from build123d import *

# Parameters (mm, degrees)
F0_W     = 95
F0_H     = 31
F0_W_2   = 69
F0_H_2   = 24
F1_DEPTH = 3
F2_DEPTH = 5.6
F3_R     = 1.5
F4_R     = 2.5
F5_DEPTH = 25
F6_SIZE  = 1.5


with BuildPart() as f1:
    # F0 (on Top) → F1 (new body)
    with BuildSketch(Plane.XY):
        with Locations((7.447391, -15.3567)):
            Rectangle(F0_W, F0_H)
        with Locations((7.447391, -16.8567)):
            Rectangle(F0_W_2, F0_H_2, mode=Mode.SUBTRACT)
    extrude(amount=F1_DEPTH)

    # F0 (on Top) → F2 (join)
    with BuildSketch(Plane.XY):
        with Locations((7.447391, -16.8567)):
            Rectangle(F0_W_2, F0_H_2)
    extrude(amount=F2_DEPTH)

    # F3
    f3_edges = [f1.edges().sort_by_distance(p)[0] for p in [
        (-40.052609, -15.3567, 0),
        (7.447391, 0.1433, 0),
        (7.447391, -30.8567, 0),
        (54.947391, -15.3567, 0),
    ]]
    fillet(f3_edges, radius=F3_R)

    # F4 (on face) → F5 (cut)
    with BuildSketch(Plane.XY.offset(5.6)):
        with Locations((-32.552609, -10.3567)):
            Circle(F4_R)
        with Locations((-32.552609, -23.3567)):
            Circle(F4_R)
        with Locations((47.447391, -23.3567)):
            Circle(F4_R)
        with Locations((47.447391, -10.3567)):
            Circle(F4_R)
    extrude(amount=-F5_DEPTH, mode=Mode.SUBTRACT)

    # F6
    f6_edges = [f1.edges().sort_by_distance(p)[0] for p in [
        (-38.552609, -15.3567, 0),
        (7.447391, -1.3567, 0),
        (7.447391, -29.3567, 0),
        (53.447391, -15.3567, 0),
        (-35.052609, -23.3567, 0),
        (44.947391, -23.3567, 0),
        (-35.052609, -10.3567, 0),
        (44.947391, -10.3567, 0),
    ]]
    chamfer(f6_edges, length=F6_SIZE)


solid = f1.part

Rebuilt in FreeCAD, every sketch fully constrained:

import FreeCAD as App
import Part
import Sketcher
from FreeCAD import Vector
Q = App.Units.Quantity


def edges_at(feature, points):
    """Names of the edges that pass closest to the given points."""
    edges = feature.Shape.Edges
    near = lambda p: min(range(len(edges)), key=lambda i: edges[i].distToShape(Part.Vertex(*p))[0])
    return sorted({f"Edge{near(p) + 1}" for p in points})


def add_polygon(sketch, points):
    """Adds a closed chain of lines whose ends are joined by coincident constraints."""
    first, n = sketch.GeometryCount, len(points)
    for a, b in zip(points, points[1:] + points[:1]):
        sketch.addGeometry(Part.LineSegment(App.Vector(*a, 0), App.Vector(*b, 0)), False)
    for i in range(n):
        sketch.addConstraint(Sketcher.Constraint("Coincident", first + i, 2, first + (i + 1) % n, 1))

doc = App.newDocument("Part")
body = doc.addObject("PartDesign::Body", "Body")

# Sketch on XY plane
sketch1 = body.newObject("Sketcher::SketchObject", "Sketch")
sketch1.AttachmentSupport = (doc.getObject("XY_Plane"), [""])
sketch1.MapMode = "FlatFace"
add_polygon(sketch1, [(-40, 0), (-40, -31), (55, -31), (55, 0)])  # lines 0-3
add_polygon(sketch1, [(42, -29), (-27, -29), (-27, -5), (42, -5)])  # lines 4-7
sketch1.addConstraint(Sketcher.Constraint("Vertical", 0))
sketch1.addConstraint(Sketcher.Constraint("Horizontal", 1))
sketch1.addConstraint(Sketcher.Constraint("Vertical", 2))
sketch1.addConstraint(Sketcher.Constraint("Horizontal", 3))
sketch1.addConstraint(Sketcher.Constraint("Horizontal", 4))
sketch1.addConstraint(Sketcher.Constraint("Vertical", 5))
sketch1.addConstraint(Sketcher.Constraint("Horizontal", 6))
sketch1.addConstraint(Sketcher.Constraint("Vertical", 7))
sketch1.addConstraint(Sketcher.Constraint("DistanceX", 1, 1, 1, 2, Q("95 mm")))
sketch1.addConstraint(Sketcher.Constraint("DistanceX", 4, 2, 4, 1, Q("69 mm")))
sketch1.addConstraint(Sketcher.Constraint("DistanceY", 0, 2, 0, 1, Q("31 mm")))
sketch1.addConstraint(Sketcher.Constraint("DistanceY", 5, 1, 5, 2, Q("24 mm")))
sketch1.addConstraint(Sketcher.Constraint("DistanceX", 0, 2, 4, 2, Q("13 mm")))
sketch1.addConstraint(Sketcher.Constraint("DistanceY", 0, 2, 4, 2, Q("2 mm")))
sketch1.addConstraint(Sketcher.Constraint("DistanceY", 0, 2, -1, 1, Q("30.8567 mm")))
sketch1.addConstraint(Sketcher.Constraint("DistanceX", 0, 2, -1, 1, Q("40.052609 mm")))
pad1 = body.newObject("PartDesign::Pad", "Pad")
pad1.Profile = sketch1
pad1.Length = 3

# Sketch on XY plane
sketch2 = body.newObject("Sketcher::SketchObject", "Sketch001")
sketch2.AttachmentSupport = (doc.getObject("XY_Plane"), [""])
sketch2.MapMode = "FlatFace"
add_polygon(sketch2, [(-27, -5), (-27, -29), (42, -29), (42, -5)])  # lines 0-3
sketch2.addConstraint(Sketcher.Constraint("Vertical", 0))
sketch2.addConstraint(Sketcher.Constraint("Horizontal", 1))
sketch2.addConstraint(Sketcher.Constraint("Vertical", 2))
sketch2.addConstraint(Sketcher.Constraint("Horizontal", 3))
sketch2.addConstraint(Sketcher.Constraint("DistanceX", 1, 1, 1, 2, Q("69 mm")))
sketch2.addConstraint(Sketcher.Constraint("DistanceY", 0, 2, 0, 1, Q("24 mm")))
sketch2.addConstraint(Sketcher.Constraint("DistanceY", 0, 2, -1, 1, Q("28.8567 mm")))
sketch2.addConstraint(Sketcher.Constraint("DistanceX", 0, 2, -1, 1, Q("27.052609 mm")))
pad2 = body.newObject("PartDesign::Pad", "Pad001")
pad2.Profile = sketch2
pad2.Length = 5.6
doc.recompute()

fillet = body.newObject("PartDesign::Fillet", "Fillet")
fillet.Base = (pad2, edges_at(pad2, [
    (-40.053, -15.357, 0),
    (7.447, 0.143, 0),
    (7.447, -30.857, 0),
    (54.947, -15.357, 0),
]))
fillet.Radius = 1.5

# Sketch on XY plane
sketch3 = body.newObject("Sketcher::SketchObject", "Sketch002")
sketch3.AttachmentSupport = (doc.getObject("XY_Plane"), [""])
sketch3.MapMode = "FlatFace"
sketch3.AttachmentOffset = App.Placement(Vector(0, 0, 5.6), App.Rotation())
sketch3.addGeometry(Part.Circle(Vector(-32.6, -10.4, 0), Vector(0, 0, 1), 2.5), False)
sketch3.addGeometry(Part.Circle(Vector(-32.6, -23.4, 0), Vector(0, 0, 1), 2.5), False)
sketch3.addGeometry(Part.Circle(Vector(47.4, -23.4, 0), Vector(0, 0, 1), 2.5), False)
sketch3.addGeometry(Part.Circle(Vector(47.4, -10.4, 0), Vector(0, 0, 1), 2.5), False)
sketch3.addConstraint(Sketcher.Constraint("Equal", 0, 1))
sketch3.addConstraint(Sketcher.Constraint("Equal", 1, 2))
sketch3.addConstraint(Sketcher.Constraint("Equal", 2, 3))
sketch3.addConstraint(Sketcher.Constraint("Horizontal", 1, 3, 2, 3))
sketch3.addConstraint(Sketcher.Constraint("Horizontal", 0, 3, 3, 3))
sketch3.addConstraint(Sketcher.Constraint("Vertical", 0, 3, 1, 3))
sketch3.addConstraint(Sketcher.Constraint("Vertical", 2, 3, 3, 3))
sketch3.addConstraint(Sketcher.Constraint("Diameter", 0, Q("5 mm")))
sketch3.addConstraint(Sketcher.Constraint("DistanceY", 1, 3, 0, 3, Q("13 mm")))
sketch3.addConstraint(Sketcher.Constraint("DistanceX", 1, 3, 2, 3, Q("80 mm")))
sketch3.addConstraint(Sketcher.Constraint("DistanceY", 0, 3, -1, 1, Q("10.3567 mm")))
sketch3.addConstraint(Sketcher.Constraint("DistanceX", 0, 3, -1, 1, Q("32.552609 mm")))
pocket1 = body.newObject("PartDesign::Pocket", "Pocket")
pocket1.Profile = sketch3
pocket1.Length = 25
doc.recompute()

chamfer = body.newObject("PartDesign::Chamfer", "Chamfer")
chamfer.Base = (pocket1, edges_at(pocket1, [
    (-38.553, -15.357, 0),
    (7.447, -1.357, 0),
    (7.447, -29.357, 0),
    (53.447, -15.357, 0),
    (-35.053, -23.357, 0),
    (44.947, -23.357, 0),
    (-35.053, -10.357, 0),
    (44.947, -10.357, 0),
]))
chamfer.Size = 1.5

doc.recompute()
